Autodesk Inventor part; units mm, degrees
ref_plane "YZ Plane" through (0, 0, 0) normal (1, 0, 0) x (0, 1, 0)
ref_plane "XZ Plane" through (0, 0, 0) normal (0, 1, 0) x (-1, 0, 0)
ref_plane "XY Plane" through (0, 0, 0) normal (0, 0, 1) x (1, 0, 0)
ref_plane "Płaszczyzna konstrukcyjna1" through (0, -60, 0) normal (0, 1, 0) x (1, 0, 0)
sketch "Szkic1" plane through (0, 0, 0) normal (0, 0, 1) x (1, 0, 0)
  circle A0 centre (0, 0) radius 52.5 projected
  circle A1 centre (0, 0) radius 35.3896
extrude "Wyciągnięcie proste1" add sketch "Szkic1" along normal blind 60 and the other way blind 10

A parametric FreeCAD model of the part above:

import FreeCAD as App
import Part
import Sketcher
from FreeCAD import Vector
Q = App.Units.Quantity

doc = App.newDocument("Part")
body = doc.addObject("PartDesign::Body", "Body")

# Sketch on XY plane
sketch1 = body.newObject("Sketcher::SketchObject", "Sketch")
sketch1.AttachmentSupport = (doc.getObject("XY_Plane"), [""])
sketch1.MapMode = "FlatFace"
sketch1.addGeometry([
    Part.Circle(Vector(0, 0, 0), Vector(0, 0, 1), 52),
    Part.Circle(Vector(0, 0, 0), Vector(0, 0, 1), 35),
], False)
sketch1.addConstraint([
    Sketcher.Constraint("Coincident", 0, 3, -1, 1),
    Sketcher.Constraint("Coincident", 1, 3, -1, 1),
    Sketcher.Constraint("Diameter", 0, Q("105 mm")),
    Sketcher.Constraint("Diameter", 1, Q("70.7792 mm")),
])
pad1 = body.newObject("PartDesign::Pad", "Pad")
pad1.Profile = sketch1
pad1.Type = "TwoLengths"
pad1.Length = 60
pad1.Length2 = 10

doc.recompute()
